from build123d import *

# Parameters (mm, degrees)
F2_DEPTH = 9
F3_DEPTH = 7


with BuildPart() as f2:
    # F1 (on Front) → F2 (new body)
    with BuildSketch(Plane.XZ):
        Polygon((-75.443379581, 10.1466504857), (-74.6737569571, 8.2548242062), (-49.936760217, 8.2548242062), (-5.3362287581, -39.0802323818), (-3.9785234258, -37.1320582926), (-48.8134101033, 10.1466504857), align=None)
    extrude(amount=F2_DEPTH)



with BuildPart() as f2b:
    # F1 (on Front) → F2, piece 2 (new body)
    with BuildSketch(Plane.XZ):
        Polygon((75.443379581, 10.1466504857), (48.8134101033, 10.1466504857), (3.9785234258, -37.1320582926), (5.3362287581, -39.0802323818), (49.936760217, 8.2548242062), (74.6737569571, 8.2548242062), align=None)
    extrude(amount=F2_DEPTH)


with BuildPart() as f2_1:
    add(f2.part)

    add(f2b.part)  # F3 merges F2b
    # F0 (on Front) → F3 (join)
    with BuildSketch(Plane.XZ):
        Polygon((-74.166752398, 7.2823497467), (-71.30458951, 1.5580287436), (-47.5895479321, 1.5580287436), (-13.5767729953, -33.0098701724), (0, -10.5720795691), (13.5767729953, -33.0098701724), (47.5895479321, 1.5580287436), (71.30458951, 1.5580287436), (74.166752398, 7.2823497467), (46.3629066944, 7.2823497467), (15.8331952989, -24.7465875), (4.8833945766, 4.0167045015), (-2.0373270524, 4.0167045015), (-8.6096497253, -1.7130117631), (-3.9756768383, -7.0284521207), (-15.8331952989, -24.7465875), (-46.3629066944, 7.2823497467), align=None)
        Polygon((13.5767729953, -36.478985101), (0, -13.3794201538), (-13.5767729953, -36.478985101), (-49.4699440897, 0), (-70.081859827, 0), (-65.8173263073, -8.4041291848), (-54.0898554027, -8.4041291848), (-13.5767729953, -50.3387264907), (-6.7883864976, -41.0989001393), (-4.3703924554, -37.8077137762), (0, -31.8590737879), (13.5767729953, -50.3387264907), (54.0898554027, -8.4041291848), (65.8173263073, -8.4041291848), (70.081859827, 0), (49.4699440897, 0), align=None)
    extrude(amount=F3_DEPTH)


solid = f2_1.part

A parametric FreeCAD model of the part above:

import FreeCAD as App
import Part
import Sketcher

doc = App.newDocument("Part")
params = doc.addObject("Spreadsheet::Sheet", "Params")
for row, (alias, value) in enumerate([
    ("pad1_length", "9 mm"),
    ("pad2_length", "9 mm"),
    ("pad3_length", "7 mm"),
], start=1):
    params.set(f"A{row}", alias)
    params.set(f"B{row}", "=" + value)
    params.setAlias(f"B{row}", alias)

body = doc.addObject("PartDesign::Body", "Body")

sketch1 = doc.addObject("Sketcher::SketchObject", "Sketch")
body.addObject(sketch1)
sketch1.AttachmentSupport = (doc.XZ_Plane, [""])
sketch1.MapMode = "FlatFace"
sketch1.addGeometry(Part.LineSegment(App.Vector(-75.4, 10.1, 0), App.Vector(-74.7, 8.3, 0)), False)
sketch1.addGeometry(Part.LineSegment(App.Vector(-74.7, 8.3, 0), App.Vector(-49.9, 8.3, 0)), False)
sketch1.addGeometry(Part.LineSegment(App.Vector(-49.9, 8.3, 0), App.Vector(-5.3, -39.1, 0)), False)
sketch1.addGeometry(Part.LineSegment(App.Vector(-5.3, -39.1, 0), App.Vector(-4, -37.1, 0)), False)
sketch1.addGeometry(Part.LineSegment(App.Vector(-4, -37.1, 0), App.Vector(-48.8, 10.1, 0)), False)
sketch1.addGeometry(Part.LineSegment(App.Vector(-48.8, 10.1, 0), App.Vector(-75.4, 10.1, 0)), False)
sketch1.addConstraint(Sketcher.Constraint("Coincident", 0, 2, 1, 1))
sketch1.addConstraint(Sketcher.Constraint("Coincident", 1, 2, 2, 1))
sketch1.addConstraint(Sketcher.Constraint("Coincident", 2, 2, 3, 1))
sketch1.addConstraint(Sketcher.Constraint("Coincident", 3, 2, 4, 1))
sketch1.addConstraint(Sketcher.Constraint("Coincident", 4, 2, 5, 1))
sketch1.addConstraint(Sketcher.Constraint("Coincident", 5, 2, 0, 1))
sketch1.addConstraint(Sketcher.Constraint("Horizontal", 1))
sketch1.addConstraint(Sketcher.Constraint("Horizontal", 5))
sketch1.addConstraint(Sketcher.Constraint("DistanceX", 5, 2, 5, 1, 26.629969))
sketch1.addConstraint(Sketcher.Constraint("DistanceX", 1, 1, 1, 2, 24.736997))
sketch1.addConstraint(Sketcher.Constraint("DistanceX", 1, 2, -1, 1, 49.93676))
sketch1.addConstraint(Sketcher.Constraint("DistanceX", 2, 2, -1, 1, 5.336229))
sketch1.addConstraint(Sketcher.Constraint("DistanceY", 3, 2, -1, 1, 37.132058))
sketch1.addConstraint(Sketcher.Constraint("DistanceX", 4, 2, -1, 1, 48.81341))
sketch1.addConstraint(Sketcher.Constraint("DistanceY", -1, 1, 4, 2, 10.14665))
sketch1.addConstraint(Sketcher.Constraint("Distance", 0, 2.042382))
sketch1.addConstraint(Sketcher.Constraint("Distance", 2, 65.037028))
sketch1.addConstraint(Sketcher.Constraint("Distance", 3, 2.374604))
pad1 = doc.addObject("PartDesign::Pad", "Pad")
body.addObject(pad1)
pad1.Profile = sketch1
pad1.setExpression("Length", "Params.pad1_length")
body2 = doc.addObject("PartDesign::Body", "Body001")

sketch2 = doc.addObject("Sketcher::SketchObject", "Sketch001")
body2.addObject(sketch2)
sketch2.AttachmentSupport = (doc.getObject("XZ_Plane001"), [""])
sketch2.MapMode = "FlatFace"
sketch2.addGeometry(Part.LineSegment(App.Vector(75.4, 10.1, 0), App.Vector(48.8, 10.1, 0)), False)
sketch2.addGeometry(Part.LineSegment(App.Vector(48.8, 10.1, 0), App.Vector(4, -37.1, 0)), False)
sketch2.addGeometry(Part.LineSegment(App.Vector(4, -37.1, 0), App.Vector(5.3, -39.1, 0)), False)
sketch2.addGeometry(Part.LineSegment(App.Vector(5.3, -39.1, 0), App.Vector(49.9, 8.3, 0)), False)
sketch2.addGeometry(Part.LineSegment(App.Vector(49.9, 8.3, 0), App.Vector(74.7, 8.3, 0)), False)
sketch2.addGeometry(Part.LineSegment(App.Vector(74.7, 8.3, 0), App.Vector(75.4, 10.1, 0)), False)
sketch2.addConstraint(Sketcher.Constraint("Coincident", 0, 2, 1, 1))
sketch2.addConstraint(Sketcher.Constraint("Coincident", 1, 2, 2, 1))
sketch2.addConstraint(Sketcher.Constraint("Coincident", 2, 2, 3, 1))
sketch2.addConstraint(Sketcher.Constraint("Coincident", 3, 2, 4, 1))
sketch2.addConstraint(Sketcher.Constraint("Coincident", 4, 2, 5, 1))
sketch2.addConstraint(Sketcher.Constraint("Coincident", 5, 2, 0, 1))
sketch2.addConstraint(Sketcher.Constraint("Horizontal", 0))
sketch2.addConstraint(Sketcher.Constraint("Horizontal", 4))
sketch2.addConstraint(Sketcher.Constraint("DistanceX", 0, 2, 0, 1, 26.629969))
sketch2.addConstraint(Sketcher.Constraint("DistanceX", 4, 1, 4, 2, 24.736997))
sketch2.addConstraint(Sketcher.Constraint("DistanceX", -1, 1, 0, 2, 48.81341))
sketch2.addConstraint(Sketcher.Constraint("DistanceY", -1, 1, 0, 2, 10.14665))
sketch2.addConstraint(Sketcher.Constraint("DistanceY", 1, 2, -1, 1, 37.132058))
sketch2.addConstraint(Sketcher.Constraint("DistanceX", -1, 1, 2, 2, 5.336229))
sketch2.addConstraint(Sketcher.Constraint("DistanceX", -1, 1, 3, 2, 49.93676))
sketch2.addConstraint(Sketcher.Constraint("Distance", 1, 65.157067))
sketch2.addConstraint(Sketcher.Constraint("Distance", 2, 2.374604))
sketch2.addConstraint(Sketcher.Constraint("Distance", 3, 65.037028))
pad2 = doc.addObject("PartDesign::Pad", "Pad001")
body2.addObject(pad2)
pad2.Profile = sketch2
pad2.setExpression("Length", "Params.pad2_length")
body.AllowCompound = True
doc.recompute()

boolean = doc.addObject("PartDesign::Boolean", "Boolean")
body.addObject(boolean)
boolean.Type = "Fuse"
boolean.addObjects([body2])

sketch3 = doc.addObject("Sketcher::SketchObject", "Sketch002")
body.addObject(sketch3)
sketch3.AttachmentSupport = (doc.XZ_Plane, [""])
sketch3.MapMode = "FlatFace"
sketch3.addGeometry(Part.LineSegment(App.Vector(-74, 7, 0), App.Vector(-71, 2, 0)), False)
sketch3.addGeometry(Part.LineSegment(App.Vector(-71, 2, 0), App.Vector(-48, 2, 0)), False)
sketch3.addGeometry(Part.LineSegment(App.Vector(-48, 2, 0), App.Vector(-14, -33, 0)), False)
sketch3.addGeometry(Part.LineSegment(App.Vector(-14, -33, 0), App.Vector(0, -11, 0)), False)
sketch3.addGeometry(Part.LineSegment(App.Vector(0, -11, 0), App.Vector(14, -33, 0)), False)
sketch3.addGeometry(Part.LineSegment(App.Vector(14, -33, 0), App.Vector(48, 2, 0)), False)
sketch3.addGeometry(Part.LineSegment(App.Vector(48, 2, 0), App.Vector(71, 2, 0)), False)
sketch3.addGeometry(Part.LineSegment(App.Vector(71, 2, 0), App.Vector(74, 7, 0)), False)
sketch3.addGeometry(Part.LineSegment(App.Vector(74, 7, 0), App.Vector(46, 7, 0)), False)
sketch3.addGeometry(Part.LineSegment(App.Vector(46, 7, 0), App.Vector(16, -25, 0)), False)
sketch3.addGeometry(Part.LineSegment(App.Vector(16, -25, 0), App.Vector(5, 4, 0)), False)
sketch3.addGeometry(Part.LineSegment(App.Vector(5, 4, 0), App.Vector(-2, 4, 0)), False)
sketch3.addGeometry(Part.LineSegment(App.Vector(-2, 4, 0), App.Vector(-9, -2, 0)), False)
sketch3.addGeometry(Part.LineSegment(App.Vector(-9, -2, 0), App.Vector(-4, -7, 0)), False)
sketch3.addGeometry(Part.LineSegment(App.Vector(-4, -7, 0), App.Vector(-16, -25, 0)), False)
sketch3.addGeometry(Part.LineSegment(App.Vector(-16, -25, 0), App.Vector(-46, 7, 0)), False)
sketch3.addGeometry(Part.LineSegment(App.Vector(-46, 7, 0), App.Vector(-74, 7, 0)), False)
sketch3.addGeometry(Part.LineSegment(App.Vector(14, -36, 0), App.Vector(0, -13, 0)), False)
sketch3.addGeometry(Part.LineSegment(App.Vector(0, -13, 0), App.Vector(-14, -36, 0)), False)
sketch3.addGeometry(Part.LineSegment(App.Vector(-14, -36, 0), App.Vector(-49, 0, 0)), False)
sketch3.addGeometry(Part.LineSegment(App.Vector(-49, 0, 0), App.Vector(-70, 0, 0)), False)
sketch3.addGeometry(Part.LineSegment(App.Vector(-70, 0, 0), App.Vector(-66, -8, 0)), False)
sketch3.addGeometry(Part.LineSegment(App.Vector(-66, -8, 0), App.Vector(-54, -8, 0)), False)
sketch3.addGeometry(Part.LineSegment(App.Vector(-54, -8, 0), App.Vector(-14, -50, 0)), False)
sketch3.addGeometry(Part.LineSegment(App.Vector(-14, -50, 0), App.Vector(-4, -38, 0)), False)
sketch3.addGeometry(Part.LineSegment(App.Vector(-4, -38, 0), App.Vector(0, -32, 0)), False)
sketch3.addGeometry(Part.LineSegment(App.Vector(0, -32, 0), App.Vector(14, -50, 0)), False)
sketch3.addGeometry(Part.LineSegment(App.Vector(14, -50, 0), App.Vector(54, -8, 0)), False)
sketch3.addGeometry(Part.LineSegment(App.Vector(54, -8, 0), App.Vector(66, -8, 0)), False)
sketch3.addGeometry(Part.LineSegment(App.Vector(66, -8, 0), App.Vector(70, 0, 0)), False)
sketch3.addGeometry(Part.LineSegment(App.Vector(70, 0, 0), App.Vector(49, 0, 0)), False)
sketch3.addGeometry(Part.LineSegment(App.Vector(49, 0, 0), App.Vector(14, -36, 0)), False)
sketch3.addConstraint(Sketcher.Constraint("Coincident", 0, 2, 1, 1))
sketch3.addConstraint(Sketcher.Constraint("Coincident", 1, 2, 2, 1))
sketch3.addConstraint(Sketcher.Constraint("Coincident", 2, 2, 3, 1))
sketch3.addConstraint(Sketcher.Constraint("Coincident", 3, 2, 4, 1))
sketch3.addConstraint(Sketcher.Constraint("Coincident", 4, 2, 5, 1))
sketch3.addConstraint(Sketcher.Constraint("Coincident", 5, 2, 6, 1))
sketch3.addConstraint(Sketcher.Constraint("Coincident", 6, 2, 7, 1))
sketch3.addConstraint(Sketcher.Constraint("Coincident", 7, 2, 8, 1))
sketch3.addConstraint(Sketcher.Constraint("Coincident", 8, 2, 9, 1))
sketch3.addConstraint(Sketcher.Constraint("Coincident", 9, 2, 10, 1))
sketch3.addConstraint(Sketcher.Constraint("Coincident", 10, 2, 11, 1))
sketch3.addConstraint(Sketcher.Constraint("Coincident", 11, 2, 12, 1))
sketch3.addConstraint(Sketcher.Constraint("Coincident", 12, 2, 13, 1))
sketch3.addConstraint(Sketcher.Constraint("Coincident", 13, 2, 14, 1))
sketch3.addConstraint(Sketcher.Constraint("Coincident", 14, 2, 15, 1))
sketch3.addConstraint(Sketcher.Constraint("Coincident", 15, 2, 16, 1))
sketch3.addConstraint(Sketcher.Constraint("Coincident", 16, 2, 0, 1))
sketch3.addConstraint(Sketcher.Constraint("Coincident", 17, 2, 18, 1))
sketch3.addConstraint(Sketcher.Constraint("Coincident", 18, 2, 19, 1))
sketch3.addConstraint(Sketcher.Constraint("Coincident", 19, 2, 20, 1))
sketch3.addConstraint(Sketcher.Constraint("Coincident", 20, 2, 21, 1))
sketch3.addConstraint(Sketcher.Constraint("Coincident", 21, 2, 22, 1))
sketch3.addConstraint(Sketcher.Constraint("Coincident", 22, 2, 23, 1))
sketch3.addConstraint(Sketcher.Constraint("Coincident", 23, 2, 24, 1))
sketch3.addConstraint(Sketcher.Constraint("Coincident", 24, 2, 25, 1))
sketch3.addConstraint(Sketcher.Constraint("Coincident", 25, 2, 26, 1))
sketch3.addConstraint(Sketcher.Constraint("Coincident", 26, 2, 27, 1))
sketch3.addConstraint(Sketcher.Constraint("Coincident", 27, 2, 28, 1))
sketch3.addConstraint(Sketcher.Constraint("Coincident", 28, 2, 29, 1))
sketch3.addConstraint(Sketcher.Constraint("Coincident", 29, 2, 30, 1))
sketch3.addConstraint(Sketcher.Constraint("Coincident", 30, 2, 31, 1))
sketch3.addConstraint(Sketcher.Constraint("Coincident", 31, 2, 17, 1))
sketch3.addConstraint(Sketcher.Constraint("Horizontal", 1))
sketch3.addConstraint(Sketcher.Constraint("Horizontal", 6))
sketch3.addConstraint(Sketcher.Constraint("Horizontal", 8))
sketch3.addConstraint(Sketcher.Constraint("Horizontal", 11))
sketch3.addConstraint(Sketcher.Constraint("Horizontal", 16))
sketch3.addConstraint(Sketcher.Constraint("Horizontal", 20))
sketch3.addConstraint(Sketcher.Constraint("Horizontal", 22))
sketch3.addConstraint(Sketcher.Constraint("Horizontal", 28))
sketch3.addConstraint(Sketcher.Constraint("Horizontal", 30))
sketch3.addConstraint(Sketcher.Constraint("Symmetric", 20, 2, 29, 2, -1, 1))
sketch3.addConstraint(Sketcher.Constraint("Symmetric", 2, 2, 4, 2, -2))
sketch3.addConstraint(Sketcher.Constraint("Symmetric", 1, 2, 5, 2, -2))
sketch3.addConstraint(Sketcher.Constraint("Symmetric", 9, 2, 14, 2, -2))
sketch3.addConstraint(Sketcher.Constraint("Symmetric", 8, 2, 15, 2, -2))
sketch3.addConstraint(Sketcher.Constraint("Symmetric", 23, 2, 26, 2, -2))
sketch3.addConstraint(Sketcher.Constraint("Symmetric", 22, 2, 27, 2, -2))
sketch3.addConstraint(Sketcher.Constraint("Symmetric", 19, 2, 30, 2, -2))
sketch3.addConstraint(Sketcher.Constraint("Symmetric", 18, 2, 31, 2, -2))
sketch3.addConstraint(Sketcher.Constraint("PointOnObject", 3, 2, -2))
sketch3.addConstraint(Sketcher.Constraint("PointOnObject", 17, 2, -2))
sketch3.addConstraint(Sketcher.Constraint("PointOnObject", 25, 2, -2))
sketch3.addConstraint(Sketcher.Constraint("Perpendicular", 12, 13))
sketch3.addConstraint(Sketcher.Constraint("Parallel", 2, 19))
sketch3.addConstraint(Sketcher.Constraint("Parallel", 24, 25))
sketch3.addConstraint(Sketcher.Constraint("Vertical", 2, 2, 18, 2))
sketch3.addConstraint(Sketcher.Constraint("Vertical", 18, 2, 23, 2))
sketch3.addConstraint(Sketcher.Constraint("Equal", 1, 6))
sketch3.addConstraint(Sketcher.Constraint("Equal", 8, 16))
sketch3.addConstraint(Sketcher.Constraint("Equal", 22, 28))
sketch3.addConstraint(Sketcher.Constraint("DistanceX", 1, 1, 1, 2, 23.715042))
sketch3.addConstraint(Sketcher.Constraint("DistanceX", 11, 2, 11, 1, 6.920722))
sketch3.addConstraint(Sketcher.Constraint("DistanceX", 22, 1, 22, 2, 11.727471))
sketch3.addConstraint(Sketcher.Constraint("DistanceY", 2, 2, 1, 2, 34.567899))
sketch3.addConstraint(Sketcher.Constraint("DistanceX", 10, 2, 9, 2, 10.949801))
sketch3.addConstraint(Sketcher.Constraint("DistanceX", 11, 2, 4, 2, 15.6141))
sketch3.addConstraint(Sketcher.Constraint("Distance", 2, 48.495448))
sketch3.addConstraint(Sketcher.Constraint("Distance", 3, 26.225621))
sketch3.addConstraint(Sketcher.Constraint("Distance", 13, 7.051781))
sketch3.addConstraint(Sketcher.Constraint("Distance", 14, 21.319781))
sketch3.addConstraint(Sketcher.Constraint("Distance", 19, 51.176519))
sketch3.addConstraint(Sketcher.Constraint("DistanceX", 8, 2, 8, 1, 27.803846))
sketch3.addConstraint(Sketcher.Constraint("DistanceX", 20, 2, 20, 1, 20.611916))
sketch3.addConstraint(Sketcher.Constraint("DistanceX", 0, 2, -1, 1, 71.30459))
sketch3.addConstraint(Sketcher.Constraint("DistanceY", -1, 1, 0, 2, 1.558029))
sketch3.addConstraint(Sketcher.Constraint("DistanceY", -1, 1, 7, 2, 7.28235))
sketch3.addConstraint(Sketcher.Constraint("DistanceX", 12, 2, -1, 1, 8.60965))
sketch3.addConstraint(Sketcher.Constraint("DistanceY", 12, 2, -1, 1, 1.713012))
sketch3.addConstraint(Sketcher.Constraint("DistanceY", 17, 2, -1, 1, 13.37942))
sketch3.addConstraint(Sketcher.Constraint("DistanceY", 21, 2, -1, 1, 8.404129))
sketch3.addConstraint(Sketcher.Constraint("DistanceX", 4, 2, 7, 2, 60.589979))
sketch3.addConstraint(Sketcher.Constraint("DistanceY", 13, 2, 12, 2, 5.31544))
sketch3.addConstraint(Sketcher.Constraint("DistanceX", 21, 2, 1, 2, 18.227778))
sketch3.addConstraint(Sketcher.Constraint("DistanceY", 23, 2, 18, 2, 13.859741))
sketch3.addConstraint(Sketcher.Constraint("DistanceX", 18, 2, 24, 2, 9.206381))
sketch3.addConstraint(Sketcher.Constraint("DistanceY", 24, 2, 18, 2, 1.328729))
pad3 = doc.addObject("PartDesign::Pad", "Pad002")
body.addObject(pad3)
pad3.Profile = sketch3
pad3.setExpression("Length", "Params.pad3_length")

doc.recompute()
